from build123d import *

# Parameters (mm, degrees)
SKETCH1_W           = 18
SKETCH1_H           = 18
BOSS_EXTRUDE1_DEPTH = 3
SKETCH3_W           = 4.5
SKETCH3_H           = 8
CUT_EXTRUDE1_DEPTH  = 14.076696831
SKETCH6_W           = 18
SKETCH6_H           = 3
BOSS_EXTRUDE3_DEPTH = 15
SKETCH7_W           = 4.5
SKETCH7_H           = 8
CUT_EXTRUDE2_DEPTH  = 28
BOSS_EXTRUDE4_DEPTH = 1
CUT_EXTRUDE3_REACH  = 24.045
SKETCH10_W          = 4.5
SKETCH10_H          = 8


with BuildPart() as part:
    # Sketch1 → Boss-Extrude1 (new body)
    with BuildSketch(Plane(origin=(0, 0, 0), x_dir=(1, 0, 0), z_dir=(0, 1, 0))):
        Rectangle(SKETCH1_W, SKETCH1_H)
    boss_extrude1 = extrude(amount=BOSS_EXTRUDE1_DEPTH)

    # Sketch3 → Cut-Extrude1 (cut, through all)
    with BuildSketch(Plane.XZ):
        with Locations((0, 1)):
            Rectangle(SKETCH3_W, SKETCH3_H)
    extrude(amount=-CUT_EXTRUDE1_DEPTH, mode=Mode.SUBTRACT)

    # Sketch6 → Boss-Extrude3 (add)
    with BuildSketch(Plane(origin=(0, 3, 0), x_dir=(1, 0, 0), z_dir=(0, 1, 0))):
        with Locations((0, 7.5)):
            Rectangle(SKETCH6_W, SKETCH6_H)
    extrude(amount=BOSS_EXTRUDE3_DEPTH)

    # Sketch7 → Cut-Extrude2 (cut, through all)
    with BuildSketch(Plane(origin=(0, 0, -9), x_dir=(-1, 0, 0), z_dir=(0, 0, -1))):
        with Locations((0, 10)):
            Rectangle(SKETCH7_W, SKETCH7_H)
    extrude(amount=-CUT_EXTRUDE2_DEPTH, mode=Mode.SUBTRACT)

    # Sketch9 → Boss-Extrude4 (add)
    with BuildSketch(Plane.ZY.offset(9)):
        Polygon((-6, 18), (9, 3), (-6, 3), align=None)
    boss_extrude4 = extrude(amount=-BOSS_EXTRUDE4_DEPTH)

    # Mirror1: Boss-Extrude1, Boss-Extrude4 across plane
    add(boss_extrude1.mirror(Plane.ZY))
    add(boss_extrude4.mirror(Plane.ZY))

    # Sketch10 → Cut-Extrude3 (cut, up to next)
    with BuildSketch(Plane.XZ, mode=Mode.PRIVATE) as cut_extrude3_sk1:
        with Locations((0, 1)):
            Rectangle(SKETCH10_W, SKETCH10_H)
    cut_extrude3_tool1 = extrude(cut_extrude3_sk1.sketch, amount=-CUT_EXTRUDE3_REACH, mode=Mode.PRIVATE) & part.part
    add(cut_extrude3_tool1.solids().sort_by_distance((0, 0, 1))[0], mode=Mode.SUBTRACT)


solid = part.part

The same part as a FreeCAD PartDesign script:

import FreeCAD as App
import Part
import Sketcher

doc = App.newDocument("Part")
body = doc.addObject("PartDesign::Body", "Body")

# Sketch on XZ plane
sketch1 = doc.addObject("Sketcher::SketchObject", "Sketch")
body.addObject(sketch1)
sketch1.AttachmentSupport = (doc.XZ_Plane, [""])
sketch1.MapMode = "FlatFace"
sketch1.addGeometry(Part.LineSegment(App.Vector(-9, -9, 0), App.Vector(-9, 9, 0)), False)
sketch1.addGeometry(Part.LineSegment(App.Vector(-9, 9, 0), App.Vector(9, 9, 0)), False)
sketch1.addGeometry(Part.LineSegment(App.Vector(9, 9, 0), App.Vector(9, -9, 0)), False)
sketch1.addGeometry(Part.LineSegment(App.Vector(9, -9, 0), App.Vector(-9, -9, 0)), False)
sketch1.addConstraint(Sketcher.Constraint("Coincident", 0, 2, 1, 1))
sketch1.addConstraint(Sketcher.Constraint("Coincident", 1, 2, 2, 1))
sketch1.addConstraint(Sketcher.Constraint("Coincident", 2, 2, 3, 1))
sketch1.addConstraint(Sketcher.Constraint("Coincident", 3, 2, 0, 1))
sketch1.addConstraint(Sketcher.Constraint("Vertical", 0))
sketch1.addConstraint(Sketcher.Constraint("Horizontal", 1))
sketch1.addConstraint(Sketcher.Constraint("Vertical", 2))
sketch1.addConstraint(Sketcher.Constraint("Horizontal", 3))
sketch1.addConstraint(Sketcher.Constraint("Symmetric", 0, 2, 2, 2, -1, 1))
sketch1.addConstraint(Sketcher.Constraint("Equal", 3, 0))
sketch1.addConstraint(Sketcher.Constraint("DistanceX", 1, 1, 1, 2, 18.0))
pad1 = doc.addObject("PartDesign::Pad", "Pad")
body.addObject(pad1)
pad1.Profile = sketch1
pad1.Length = 3
pad1.Reversed = True

# Sketch on XZ plane
sketch2 = doc.addObject("Sketcher::SketchObject", "Sketch001")
body.addObject(sketch2)
sketch2.AttachmentSupport = (doc.XZ_Plane, [""])
sketch2.MapMode = "FlatFace"
sketch2.addGeometry(Part.LineSegment(App.Vector(-2.2, 5, 0), App.Vector(-2.2, -3, 0)), False)
sketch2.addGeometry(Part.LineSegment(App.Vector(-2.2, -3, 0), App.Vector(2.2, -3, 0)), False)
sketch2.addGeometry(Part.LineSegment(App.Vector(2.2, -3, 0), App.Vector(2.2, 5, 0)), False)
sketch2.addGeometry(Part.LineSegment(App.Vector(2.2, 5, 0), App.Vector(-2.2, 5, 0)), False)
sketch2.addConstraint(Sketcher.Constraint("Coincident", 0, 2, 1, 1))
sketch2.addConstraint(Sketcher.Constraint("Coincident", 1, 2, 2, 1))
sketch2.addConstraint(Sketcher.Constraint("Coincident", 2, 2, 3, 1))
sketch2.addConstraint(Sketcher.Constraint("Coincident", 3, 2, 0, 1))
sketch2.addConstraint(Sketcher.Constraint("Vertical", 0))
sketch2.addConstraint(Sketcher.Constraint("Horizontal", 1))
sketch2.addConstraint(Sketcher.Constraint("Vertical", 2))
sketch2.addConstraint(Sketcher.Constraint("Horizontal", 3))
sketch2.addConstraint(Sketcher.Constraint("DistanceY", 0, 2, 0, 1, 8.0))
sketch2.addConstraint(Sketcher.Constraint("DistanceX", 1, 1, 1, 2, 4.5))
sketch2.addConstraint(Sketcher.Constraint("DistanceY", 0, 2, -1, 1, 3.0))
sketch2.addConstraint(Sketcher.Constraint("DistanceX", 0, 2, -1, 1, 2.25))
pocket1 = doc.addObject("PartDesign::Pocket", "Pocket")
body.addObject(pocket1)
pocket1.Profile = sketch2
pocket1.Type = "ThroughAll"

# Sketch on XZ plane
sketch3 = doc.addObject("Sketcher::SketchObject", "Sketch002")
body.addObject(sketch3)
sketch3.AttachmentSupport = (doc.XZ_Plane, [""])
sketch3.MapMode = "FlatFace"
sketch3.AttachmentOffset = App.Placement(App.Vector(0, 0, -3), App.Rotation())
sketch3.addGeometry(Part.LineSegment(App.Vector(-9, -9, 0), App.Vector(-9, -6, 0)), False)
sketch3.addGeometry(Part.LineSegment(App.Vector(-9, -6, 0), App.Vector(9, -6, 0)), False)
sketch3.addGeometry(Part.LineSegment(App.Vector(9, -6, 0), App.Vector(9, -9, 0)), False)
sketch3.addGeometry(Part.LineSegment(App.Vector(9, -9, 0), App.Vector(-9, -9, 0)), False)
sketch3.addConstraint(Sketcher.Constraint("Coincident", 0, 2, 1, 1))
sketch3.addConstraint(Sketcher.Constraint("Coincident", 1, 2, 2, 1))
sketch3.addConstraint(Sketcher.Constraint("Coincident", 2, 2, 3, 1))
sketch3.addConstraint(Sketcher.Constraint("Coincident", 3, 2, 0, 1))
sketch3.addConstraint(Sketcher.Constraint("Vertical", 0))
sketch3.addConstraint(Sketcher.Constraint("Horizontal", 1))
sketch3.addConstraint(Sketcher.Constraint("Vertical", 2))
sketch3.addConstraint(Sketcher.Constraint("Horizontal", 3))
sketch3.addConstraint(Sketcher.Constraint("DistanceX", 1, 1, 1, 2, 18.0))
sketch3.addConstraint(Sketcher.Constraint("DistanceY", 0, 1, 0, 2, 3.0))
sketch3.addConstraint(Sketcher.Constraint("DistanceX", 0, 2, -1, 1, 9.0))
sketch3.addConstraint(Sketcher.Constraint("DistanceY", 0, 2, -1, 1, 6.0))
pad2 = doc.addObject("PartDesign::Pad", "Pad001")
body.addObject(pad2)
pad2.Profile = sketch3
pad2.Length = 15
pad2.Reversed = True

# Sketch on XY plane
sketch4 = doc.addObject("Sketcher::SketchObject", "Sketch003")
body.addObject(sketch4)
sketch4.AttachmentSupport = (doc.XY_Plane, [""])
sketch4.MapMode = "FlatFace"
sketch4.AttachmentOffset = App.Placement(App.Vector(0, 0, -9), App.Rotation())
sketch4.addGeometry(Part.LineSegment(App.Vector(2.2, 14, 0), App.Vector(2.2, 6, 0)), False)
sketch4.addGeometry(Part.LineSegment(App.Vector(2.2, 6, 0), App.Vector(-2.2, 6, 0)), False)
sketch4.addGeometry(Part.LineSegment(App.Vector(-2.2, 6, 0), App.Vector(-2.2, 14, 0)), False)
sketch4.addGeometry(Part.LineSegment(App.Vector(-2.2, 14, 0), App.Vector(2.2, 14, 0)), False)
sketch4.addConstraint(Sketcher.Constraint("Coincident", 0, 2, 1, 1))
sketch4.addConstraint(Sketcher.Constraint("Coincident", 1, 2, 2, 1))
sketch4.addConstraint(Sketcher.Constraint("Coincident", 2, 2, 3, 1))
sketch4.addConstraint(Sketcher.Constraint("Coincident", 3, 2, 0, 1))
sketch4.addConstraint(Sketcher.Constraint("Vertical", 0))
sketch4.addConstraint(Sketcher.Constraint("Horizontal", 1))
sketch4.addConstraint(Sketcher.Constraint("Vertical", 2))
sketch4.addConstraint(Sketcher.Constraint("Horizontal", 3))
sketch4.addConstraint(Sketcher.Constraint("DistanceY", 0, 2, 0, 1, 8.0))
sketch4.addConstraint(Sketcher.Constraint("DistanceX", 1, 2, 1, 1, 4.5))
sketch4.addConstraint(Sketcher.Constraint("DistanceY", -1, 1, 0, 2, 6.0))
sketch4.addConstraint(Sketcher.Constraint("DistanceX", -1, 1, 0, 2, 2.25))
pocket2 = doc.addObject("PartDesign::Pocket", "Pocket001")
body.addObject(pocket2)
pocket2.Profile = sketch4
pocket2.Type = "ThroughAll"
pocket2.Reversed = True

# Sketch on YZ plane
sketch5 = doc.addObject("Sketcher::SketchObject", "Sketch004")
body.addObject(sketch5)
sketch5.AttachmentSupport = (doc.YZ_Plane, [""])
sketch5.MapMode = "FlatFace"
sketch5.AttachmentOffset = App.Placement(App.Vector(0, 0, -9), App.Rotation())
sketch5.addGeometry(Part.LineSegment(App.Vector(3, 9, 0), App.Vector(18, -6, 0)), False)
sketch5.addGeometry(Part.LineSegment(App.Vector(18, -6, 0), App.Vector(3, -6, 0)), False)
sketch5.addGeometry(Part.LineSegment(App.Vector(3, -6, 0), App.Vector(3, 9, 0)), False)
sketch5.addConstraint(Sketcher.Constraint("Coincident", 0, 2, 1, 1))
sketch5.addConstraint(Sketcher.Constraint("Coincident", 1, 2, 2, 1))
sketch5.addConstraint(Sketcher.Constraint("Coincident", 2, 2, 0, 1))
sketch5.addConstraint(Sketcher.Constraint("Horizontal", 1))
sketch5.addConstraint(Sketcher.Constraint("Vertical", 2))
sketch5.addConstraint(Sketcher.Constraint("Equal", 1, 2))
sketch5.addConstraint(Sketcher.Constraint("DistanceX", 1, 2, 1, 1, 15.0))
sketch5.addConstraint(Sketcher.Constraint("DistanceX", -1, 1, 0, 2, 18.0))
sketch5.addConstraint(Sketcher.Constraint("DistanceY", 0, 2, -1, 1, 6.0))
pad3 = doc.addObject("PartDesign::Pad", "Pad002")
body.addObject(pad3)
pad3.Profile = sketch5
pad3.Length = 1
doc.recompute()

mirrored = doc.addObject("PartDesign::Mirrored", "Mirrored")
body.addObject(mirrored)
mirrored.Originals = [pad1, pad3]
mirrored.MirrorPlane = (doc.YZ_Plane, [""])
body.Tip = mirrored

# Sketch on XZ plane
sketch6 = doc.addObject("Sketcher::SketchObject", "Sketch005")
body.addObject(sketch6)
sketch6.AttachmentSupport = (doc.XZ_Plane, [""])
sketch6.MapMode = "FlatFace"
sketch6.addGeometry(Part.LineSegment(App.Vector(-2.2, 5, 0), App.Vector(-2.2, -3, 0)), False)
sketch6.addGeometry(Part.LineSegment(App.Vector(-2.2, -3, 0), App.Vector(2.2, -3, 0)), False)
sketch6.addGeometry(Part.LineSegment(App.Vector(2.2, -3, 0), App.Vector(2.2, 5, 0)), False)
sketch6.addGeometry(Part.LineSegment(App.Vector(2.2, 5, 0), App.Vector(-2.2, 5, 0)), False)
sketch6.addConstraint(Sketcher.Constraint("Coincident", 0, 2, 1, 1))
sketch6.addConstraint(Sketcher.Constraint("Coincident", 1, 2, 2, 1))
sketch6.addConstraint(Sketcher.Constraint("Coincident", 2, 2, 3, 1))
sketch6.addConstraint(Sketcher.Constraint("Coincident", 3, 2, 0, 1))
sketch6.addConstraint(Sketcher.Constraint("Vertical", 0))
sketch6.addConstraint(Sketcher.Constraint("Horizontal", 1))
sketch6.addConstraint(Sketcher.Constraint("Vertical", 2))
sketch6.addConstraint(Sketcher.Constraint("Horizontal", 3))
sketch6.addConstraint(Sketcher.Constraint("DistanceY", 0, 2, 0, 1, 8.0))
sketch6.addConstraint(Sketcher.Constraint("DistanceX", 1, 1, 1, 2, 4.5))
sketch6.addConstraint(Sketcher.Constraint("DistanceY", 0, 2, -1, 1, 3.0))
sketch6.addConstraint(Sketcher.Constraint("DistanceX", 0, 2, -1, 1, 2.25))
pocket3 = doc.addObject("PartDesign::Pocket", "Pocket002")
body.addObject(pocket3)
pocket3.Profile = sketch6
pocket3.Type = "UpToFirst"

doc.recompute()
